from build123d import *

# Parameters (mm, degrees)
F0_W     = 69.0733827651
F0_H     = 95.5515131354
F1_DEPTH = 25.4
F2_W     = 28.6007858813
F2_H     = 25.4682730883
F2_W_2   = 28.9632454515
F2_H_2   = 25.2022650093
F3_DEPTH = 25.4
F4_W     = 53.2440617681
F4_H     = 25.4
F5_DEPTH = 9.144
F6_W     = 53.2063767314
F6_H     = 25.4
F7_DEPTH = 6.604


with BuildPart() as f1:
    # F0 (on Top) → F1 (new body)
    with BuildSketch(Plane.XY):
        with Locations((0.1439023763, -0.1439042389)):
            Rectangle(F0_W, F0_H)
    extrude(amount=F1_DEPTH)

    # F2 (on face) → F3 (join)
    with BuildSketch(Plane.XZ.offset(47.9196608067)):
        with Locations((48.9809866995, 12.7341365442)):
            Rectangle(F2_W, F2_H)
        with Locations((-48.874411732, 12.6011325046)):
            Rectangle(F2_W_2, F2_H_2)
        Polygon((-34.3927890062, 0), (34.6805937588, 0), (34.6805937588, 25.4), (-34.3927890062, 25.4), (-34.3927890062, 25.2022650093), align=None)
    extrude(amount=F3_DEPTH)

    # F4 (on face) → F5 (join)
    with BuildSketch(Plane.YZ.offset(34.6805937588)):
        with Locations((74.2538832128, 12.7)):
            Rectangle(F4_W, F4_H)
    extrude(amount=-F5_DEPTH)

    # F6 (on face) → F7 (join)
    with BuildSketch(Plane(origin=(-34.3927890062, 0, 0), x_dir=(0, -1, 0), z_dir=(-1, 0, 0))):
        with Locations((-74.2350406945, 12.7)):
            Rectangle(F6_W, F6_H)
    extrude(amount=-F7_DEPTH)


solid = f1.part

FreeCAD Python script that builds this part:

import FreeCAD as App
import Part
import Sketcher

V = App.Vector
Q = App.Units.Quantity


def add_polygon(sketch, points):
    """Adds a closed chain of lines whose ends are joined by coincident constraints."""
    first, n = sketch.GeometryCount, len(points)
    for a, b in zip(points, points[1:] + points[:1]):
        sketch.addGeometry(Part.LineSegment(App.Vector(*a, 0), App.Vector(*b, 0)), False)
    for i in range(n):
        sketch.addConstraint(Sketcher.Constraint("Coincident", first + i, 2, first + (i + 1) % n, 1))

doc = App.newDocument("Part")
params = doc.addObject("Spreadsheet::Sheet", "Params")
for row, (alias, value) in enumerate([
    ("pad1_length", "1 in"),
    ("pad2_length", "1 in"),
    ("sketch3_height", "1 in"),
    ("pad3_length", "0.36 in"),
    ("sketch4_height", "1 in"),
    ("pad4_length", "0.26 in"),
], start=1):
    params.set(f"A{row}", alias)
    params.set(f"B{row}", "=" + value)
    params.setAlias(f"B{row}", alias)

body = doc.addObject("PartDesign::Body", "Body")

# Sketch on XY plane
sketch1 = body.newObject("Sketcher::SketchObject", "Sketch")
sketch1.AttachmentSupport = (doc.getObject("XY_Plane"), [""])
sketch1.MapMode = "FlatFace"
add_polygon(sketch1, [(-34, 48), (-34, -48), (35, -48), (35, 48)])  # lines 0-3
sketch1.addConstraint([
    Sketcher.Constraint("Vertical", 0),
    Sketcher.Constraint("Horizontal", 1),
    Sketcher.Constraint("Vertical", 2),
    Sketcher.Constraint("Horizontal", 3),
    Sketcher.Constraint("DistanceX", 1, 1, 1, 2, 69.073383),
    Sketcher.Constraint("DistanceY", 0, 2, 0, 1, 95.551513),
    Sketcher.Constraint("DistanceX", 0, 2, -1, 1, 34.392789),
    Sketcher.Constraint("DistanceY", 0, 2, -1, 1, 47.919661),
])
pad1 = body.newObject("PartDesign::Pad", "Pad")
pad1.Profile = sketch1
pad1.setExpression("Length", "Params.pad1_length")

# Sketch on XZ plane
sketch2 = body.newObject("Sketcher::SketchObject", "Sketch001")
sketch2.AttachmentSupport = (doc.getObject("XZ_Plane"), [""])
sketch2.MapMode = "FlatFace"
sketch2.AttachmentOffset = App.Placement(V(0, 0, 47.919661), App.Rotation())
add_polygon(sketch2, [(34.68, 25.47), (34.68, 25.4), (-34.39, 25.4), (-34.39, 25.2), (-63.36, 25.2), (-63.36, 0), (63.28, 0), (63.28, 25.47)])  # lines 0-7
sketch2.addConstraint([
    Sketcher.Constraint("Vertical", 0),
    Sketcher.Constraint("Horizontal", 1),
    Sketcher.Constraint("Vertical", 2),
    Sketcher.Constraint("Horizontal", 3),
    Sketcher.Constraint("Vertical", 4),
    Sketcher.Constraint("Horizontal", 5),
    Sketcher.Constraint("Vertical", 6),
    Sketcher.Constraint("Horizontal", 7),
    Sketcher.Constraint("PointOnObject", 4, 2, -1),
    Sketcher.Constraint("DistanceY", -1, 1, 0, 2, Q("1 in")),
    Sketcher.Constraint("DistanceX", 1, 2, 1, 1, 69.073383),
    Sketcher.Constraint("DistanceX", 3, 2, 3, 1, 28.963245),
    Sketcher.Constraint("DistanceX", 5, 1, 5, 2, 126.637414),
    Sketcher.Constraint("DistanceY", 0, 2, 0, 1, 0.068273),
    Sketcher.Constraint("DistanceY", 2, 2, 2, 1, 0.197735),
    Sketcher.Constraint("DistanceX", 1, 2, -1, 1, 34.392789),
])
pad2 = body.newObject("PartDesign::Pad", "Pad001")
pad2.Profile = sketch2
pad2.setExpression("Length", "Params.pad2_length")

# Sketch on YZ plane
sketch3 = body.newObject("Sketcher::SketchObject", "Sketch002")
sketch3.AttachmentSupport = (doc.getObject("YZ_Plane"), [""])
sketch3.MapMode = "FlatFace"
sketch3.AttachmentOffset = App.Placement(V(0, 0, 34.680594), App.Rotation())
add_polygon(sketch3, [(48, 25), (48, 0), (101, 0), (101, 25)])  # lines 0-3
sketch3.addConstraint([
    Sketcher.Constraint("Vertical", 0),
    Sketcher.Constraint("Horizontal", 1),
    Sketcher.Constraint("Vertical", 2),
    Sketcher.Constraint("Horizontal", 3),
    Sketcher.Constraint("PointOnObject", 0, 2, -1),
    Sketcher.Constraint("DistanceY", 0, 2, 0, 1, Q("1 in")),
    Sketcher.Constraint("DistanceX", 1, 1, 1, 2, 53.244062),
    Sketcher.Constraint("DistanceX", -1, 1, 0, 2, 47.631852),
])
sketch3.setExpression("Constraints[9]", "Params.sketch3_height")
pad3 = body.newObject("PartDesign::Pad", "Pad002")
pad3.Profile = sketch3
pad3.setExpression("Length", "Params.pad3_length")
pad3.Reversed = True

# Sketch on YZ plane
sketch4 = body.newObject("Sketcher::SketchObject", "Sketch003")
sketch4.AttachmentSupport = (doc.getObject("YZ_Plane"), [""])
sketch4.MapMode = "FlatFace"
sketch4.AttachmentOffset = App.Placement(V(0, 0, -34.392789), App.Rotation())
add_polygon(sketch4, [(101, 25), (101, 0), (48, 0), (48, 25)])  # lines 0-3
sketch4.addConstraint([
    Sketcher.Constraint("Vertical", 0),
    Sketcher.Constraint("Horizontal", 1),
    Sketcher.Constraint("Vertical", 2),
    Sketcher.Constraint("Horizontal", 3),
    Sketcher.Constraint("PointOnObject", 0, 2, -1),
    Sketcher.Constraint("DistanceY", 0, 2, 0, 1, Q("1 in")),
    Sketcher.Constraint("DistanceX", 1, 2, 1, 1, 53.206377),
    Sketcher.Constraint("DistanceX", -1, 1, 0, 2, 100.838229),
])
sketch4.setExpression("Constraints[9]", "Params.sketch4_height")
pad4 = body.newObject("PartDesign::Pad", "Pad003")
pad4.Profile = sketch4
pad4.setExpression("Length", "Params.pad4_length")

doc.recompute()
